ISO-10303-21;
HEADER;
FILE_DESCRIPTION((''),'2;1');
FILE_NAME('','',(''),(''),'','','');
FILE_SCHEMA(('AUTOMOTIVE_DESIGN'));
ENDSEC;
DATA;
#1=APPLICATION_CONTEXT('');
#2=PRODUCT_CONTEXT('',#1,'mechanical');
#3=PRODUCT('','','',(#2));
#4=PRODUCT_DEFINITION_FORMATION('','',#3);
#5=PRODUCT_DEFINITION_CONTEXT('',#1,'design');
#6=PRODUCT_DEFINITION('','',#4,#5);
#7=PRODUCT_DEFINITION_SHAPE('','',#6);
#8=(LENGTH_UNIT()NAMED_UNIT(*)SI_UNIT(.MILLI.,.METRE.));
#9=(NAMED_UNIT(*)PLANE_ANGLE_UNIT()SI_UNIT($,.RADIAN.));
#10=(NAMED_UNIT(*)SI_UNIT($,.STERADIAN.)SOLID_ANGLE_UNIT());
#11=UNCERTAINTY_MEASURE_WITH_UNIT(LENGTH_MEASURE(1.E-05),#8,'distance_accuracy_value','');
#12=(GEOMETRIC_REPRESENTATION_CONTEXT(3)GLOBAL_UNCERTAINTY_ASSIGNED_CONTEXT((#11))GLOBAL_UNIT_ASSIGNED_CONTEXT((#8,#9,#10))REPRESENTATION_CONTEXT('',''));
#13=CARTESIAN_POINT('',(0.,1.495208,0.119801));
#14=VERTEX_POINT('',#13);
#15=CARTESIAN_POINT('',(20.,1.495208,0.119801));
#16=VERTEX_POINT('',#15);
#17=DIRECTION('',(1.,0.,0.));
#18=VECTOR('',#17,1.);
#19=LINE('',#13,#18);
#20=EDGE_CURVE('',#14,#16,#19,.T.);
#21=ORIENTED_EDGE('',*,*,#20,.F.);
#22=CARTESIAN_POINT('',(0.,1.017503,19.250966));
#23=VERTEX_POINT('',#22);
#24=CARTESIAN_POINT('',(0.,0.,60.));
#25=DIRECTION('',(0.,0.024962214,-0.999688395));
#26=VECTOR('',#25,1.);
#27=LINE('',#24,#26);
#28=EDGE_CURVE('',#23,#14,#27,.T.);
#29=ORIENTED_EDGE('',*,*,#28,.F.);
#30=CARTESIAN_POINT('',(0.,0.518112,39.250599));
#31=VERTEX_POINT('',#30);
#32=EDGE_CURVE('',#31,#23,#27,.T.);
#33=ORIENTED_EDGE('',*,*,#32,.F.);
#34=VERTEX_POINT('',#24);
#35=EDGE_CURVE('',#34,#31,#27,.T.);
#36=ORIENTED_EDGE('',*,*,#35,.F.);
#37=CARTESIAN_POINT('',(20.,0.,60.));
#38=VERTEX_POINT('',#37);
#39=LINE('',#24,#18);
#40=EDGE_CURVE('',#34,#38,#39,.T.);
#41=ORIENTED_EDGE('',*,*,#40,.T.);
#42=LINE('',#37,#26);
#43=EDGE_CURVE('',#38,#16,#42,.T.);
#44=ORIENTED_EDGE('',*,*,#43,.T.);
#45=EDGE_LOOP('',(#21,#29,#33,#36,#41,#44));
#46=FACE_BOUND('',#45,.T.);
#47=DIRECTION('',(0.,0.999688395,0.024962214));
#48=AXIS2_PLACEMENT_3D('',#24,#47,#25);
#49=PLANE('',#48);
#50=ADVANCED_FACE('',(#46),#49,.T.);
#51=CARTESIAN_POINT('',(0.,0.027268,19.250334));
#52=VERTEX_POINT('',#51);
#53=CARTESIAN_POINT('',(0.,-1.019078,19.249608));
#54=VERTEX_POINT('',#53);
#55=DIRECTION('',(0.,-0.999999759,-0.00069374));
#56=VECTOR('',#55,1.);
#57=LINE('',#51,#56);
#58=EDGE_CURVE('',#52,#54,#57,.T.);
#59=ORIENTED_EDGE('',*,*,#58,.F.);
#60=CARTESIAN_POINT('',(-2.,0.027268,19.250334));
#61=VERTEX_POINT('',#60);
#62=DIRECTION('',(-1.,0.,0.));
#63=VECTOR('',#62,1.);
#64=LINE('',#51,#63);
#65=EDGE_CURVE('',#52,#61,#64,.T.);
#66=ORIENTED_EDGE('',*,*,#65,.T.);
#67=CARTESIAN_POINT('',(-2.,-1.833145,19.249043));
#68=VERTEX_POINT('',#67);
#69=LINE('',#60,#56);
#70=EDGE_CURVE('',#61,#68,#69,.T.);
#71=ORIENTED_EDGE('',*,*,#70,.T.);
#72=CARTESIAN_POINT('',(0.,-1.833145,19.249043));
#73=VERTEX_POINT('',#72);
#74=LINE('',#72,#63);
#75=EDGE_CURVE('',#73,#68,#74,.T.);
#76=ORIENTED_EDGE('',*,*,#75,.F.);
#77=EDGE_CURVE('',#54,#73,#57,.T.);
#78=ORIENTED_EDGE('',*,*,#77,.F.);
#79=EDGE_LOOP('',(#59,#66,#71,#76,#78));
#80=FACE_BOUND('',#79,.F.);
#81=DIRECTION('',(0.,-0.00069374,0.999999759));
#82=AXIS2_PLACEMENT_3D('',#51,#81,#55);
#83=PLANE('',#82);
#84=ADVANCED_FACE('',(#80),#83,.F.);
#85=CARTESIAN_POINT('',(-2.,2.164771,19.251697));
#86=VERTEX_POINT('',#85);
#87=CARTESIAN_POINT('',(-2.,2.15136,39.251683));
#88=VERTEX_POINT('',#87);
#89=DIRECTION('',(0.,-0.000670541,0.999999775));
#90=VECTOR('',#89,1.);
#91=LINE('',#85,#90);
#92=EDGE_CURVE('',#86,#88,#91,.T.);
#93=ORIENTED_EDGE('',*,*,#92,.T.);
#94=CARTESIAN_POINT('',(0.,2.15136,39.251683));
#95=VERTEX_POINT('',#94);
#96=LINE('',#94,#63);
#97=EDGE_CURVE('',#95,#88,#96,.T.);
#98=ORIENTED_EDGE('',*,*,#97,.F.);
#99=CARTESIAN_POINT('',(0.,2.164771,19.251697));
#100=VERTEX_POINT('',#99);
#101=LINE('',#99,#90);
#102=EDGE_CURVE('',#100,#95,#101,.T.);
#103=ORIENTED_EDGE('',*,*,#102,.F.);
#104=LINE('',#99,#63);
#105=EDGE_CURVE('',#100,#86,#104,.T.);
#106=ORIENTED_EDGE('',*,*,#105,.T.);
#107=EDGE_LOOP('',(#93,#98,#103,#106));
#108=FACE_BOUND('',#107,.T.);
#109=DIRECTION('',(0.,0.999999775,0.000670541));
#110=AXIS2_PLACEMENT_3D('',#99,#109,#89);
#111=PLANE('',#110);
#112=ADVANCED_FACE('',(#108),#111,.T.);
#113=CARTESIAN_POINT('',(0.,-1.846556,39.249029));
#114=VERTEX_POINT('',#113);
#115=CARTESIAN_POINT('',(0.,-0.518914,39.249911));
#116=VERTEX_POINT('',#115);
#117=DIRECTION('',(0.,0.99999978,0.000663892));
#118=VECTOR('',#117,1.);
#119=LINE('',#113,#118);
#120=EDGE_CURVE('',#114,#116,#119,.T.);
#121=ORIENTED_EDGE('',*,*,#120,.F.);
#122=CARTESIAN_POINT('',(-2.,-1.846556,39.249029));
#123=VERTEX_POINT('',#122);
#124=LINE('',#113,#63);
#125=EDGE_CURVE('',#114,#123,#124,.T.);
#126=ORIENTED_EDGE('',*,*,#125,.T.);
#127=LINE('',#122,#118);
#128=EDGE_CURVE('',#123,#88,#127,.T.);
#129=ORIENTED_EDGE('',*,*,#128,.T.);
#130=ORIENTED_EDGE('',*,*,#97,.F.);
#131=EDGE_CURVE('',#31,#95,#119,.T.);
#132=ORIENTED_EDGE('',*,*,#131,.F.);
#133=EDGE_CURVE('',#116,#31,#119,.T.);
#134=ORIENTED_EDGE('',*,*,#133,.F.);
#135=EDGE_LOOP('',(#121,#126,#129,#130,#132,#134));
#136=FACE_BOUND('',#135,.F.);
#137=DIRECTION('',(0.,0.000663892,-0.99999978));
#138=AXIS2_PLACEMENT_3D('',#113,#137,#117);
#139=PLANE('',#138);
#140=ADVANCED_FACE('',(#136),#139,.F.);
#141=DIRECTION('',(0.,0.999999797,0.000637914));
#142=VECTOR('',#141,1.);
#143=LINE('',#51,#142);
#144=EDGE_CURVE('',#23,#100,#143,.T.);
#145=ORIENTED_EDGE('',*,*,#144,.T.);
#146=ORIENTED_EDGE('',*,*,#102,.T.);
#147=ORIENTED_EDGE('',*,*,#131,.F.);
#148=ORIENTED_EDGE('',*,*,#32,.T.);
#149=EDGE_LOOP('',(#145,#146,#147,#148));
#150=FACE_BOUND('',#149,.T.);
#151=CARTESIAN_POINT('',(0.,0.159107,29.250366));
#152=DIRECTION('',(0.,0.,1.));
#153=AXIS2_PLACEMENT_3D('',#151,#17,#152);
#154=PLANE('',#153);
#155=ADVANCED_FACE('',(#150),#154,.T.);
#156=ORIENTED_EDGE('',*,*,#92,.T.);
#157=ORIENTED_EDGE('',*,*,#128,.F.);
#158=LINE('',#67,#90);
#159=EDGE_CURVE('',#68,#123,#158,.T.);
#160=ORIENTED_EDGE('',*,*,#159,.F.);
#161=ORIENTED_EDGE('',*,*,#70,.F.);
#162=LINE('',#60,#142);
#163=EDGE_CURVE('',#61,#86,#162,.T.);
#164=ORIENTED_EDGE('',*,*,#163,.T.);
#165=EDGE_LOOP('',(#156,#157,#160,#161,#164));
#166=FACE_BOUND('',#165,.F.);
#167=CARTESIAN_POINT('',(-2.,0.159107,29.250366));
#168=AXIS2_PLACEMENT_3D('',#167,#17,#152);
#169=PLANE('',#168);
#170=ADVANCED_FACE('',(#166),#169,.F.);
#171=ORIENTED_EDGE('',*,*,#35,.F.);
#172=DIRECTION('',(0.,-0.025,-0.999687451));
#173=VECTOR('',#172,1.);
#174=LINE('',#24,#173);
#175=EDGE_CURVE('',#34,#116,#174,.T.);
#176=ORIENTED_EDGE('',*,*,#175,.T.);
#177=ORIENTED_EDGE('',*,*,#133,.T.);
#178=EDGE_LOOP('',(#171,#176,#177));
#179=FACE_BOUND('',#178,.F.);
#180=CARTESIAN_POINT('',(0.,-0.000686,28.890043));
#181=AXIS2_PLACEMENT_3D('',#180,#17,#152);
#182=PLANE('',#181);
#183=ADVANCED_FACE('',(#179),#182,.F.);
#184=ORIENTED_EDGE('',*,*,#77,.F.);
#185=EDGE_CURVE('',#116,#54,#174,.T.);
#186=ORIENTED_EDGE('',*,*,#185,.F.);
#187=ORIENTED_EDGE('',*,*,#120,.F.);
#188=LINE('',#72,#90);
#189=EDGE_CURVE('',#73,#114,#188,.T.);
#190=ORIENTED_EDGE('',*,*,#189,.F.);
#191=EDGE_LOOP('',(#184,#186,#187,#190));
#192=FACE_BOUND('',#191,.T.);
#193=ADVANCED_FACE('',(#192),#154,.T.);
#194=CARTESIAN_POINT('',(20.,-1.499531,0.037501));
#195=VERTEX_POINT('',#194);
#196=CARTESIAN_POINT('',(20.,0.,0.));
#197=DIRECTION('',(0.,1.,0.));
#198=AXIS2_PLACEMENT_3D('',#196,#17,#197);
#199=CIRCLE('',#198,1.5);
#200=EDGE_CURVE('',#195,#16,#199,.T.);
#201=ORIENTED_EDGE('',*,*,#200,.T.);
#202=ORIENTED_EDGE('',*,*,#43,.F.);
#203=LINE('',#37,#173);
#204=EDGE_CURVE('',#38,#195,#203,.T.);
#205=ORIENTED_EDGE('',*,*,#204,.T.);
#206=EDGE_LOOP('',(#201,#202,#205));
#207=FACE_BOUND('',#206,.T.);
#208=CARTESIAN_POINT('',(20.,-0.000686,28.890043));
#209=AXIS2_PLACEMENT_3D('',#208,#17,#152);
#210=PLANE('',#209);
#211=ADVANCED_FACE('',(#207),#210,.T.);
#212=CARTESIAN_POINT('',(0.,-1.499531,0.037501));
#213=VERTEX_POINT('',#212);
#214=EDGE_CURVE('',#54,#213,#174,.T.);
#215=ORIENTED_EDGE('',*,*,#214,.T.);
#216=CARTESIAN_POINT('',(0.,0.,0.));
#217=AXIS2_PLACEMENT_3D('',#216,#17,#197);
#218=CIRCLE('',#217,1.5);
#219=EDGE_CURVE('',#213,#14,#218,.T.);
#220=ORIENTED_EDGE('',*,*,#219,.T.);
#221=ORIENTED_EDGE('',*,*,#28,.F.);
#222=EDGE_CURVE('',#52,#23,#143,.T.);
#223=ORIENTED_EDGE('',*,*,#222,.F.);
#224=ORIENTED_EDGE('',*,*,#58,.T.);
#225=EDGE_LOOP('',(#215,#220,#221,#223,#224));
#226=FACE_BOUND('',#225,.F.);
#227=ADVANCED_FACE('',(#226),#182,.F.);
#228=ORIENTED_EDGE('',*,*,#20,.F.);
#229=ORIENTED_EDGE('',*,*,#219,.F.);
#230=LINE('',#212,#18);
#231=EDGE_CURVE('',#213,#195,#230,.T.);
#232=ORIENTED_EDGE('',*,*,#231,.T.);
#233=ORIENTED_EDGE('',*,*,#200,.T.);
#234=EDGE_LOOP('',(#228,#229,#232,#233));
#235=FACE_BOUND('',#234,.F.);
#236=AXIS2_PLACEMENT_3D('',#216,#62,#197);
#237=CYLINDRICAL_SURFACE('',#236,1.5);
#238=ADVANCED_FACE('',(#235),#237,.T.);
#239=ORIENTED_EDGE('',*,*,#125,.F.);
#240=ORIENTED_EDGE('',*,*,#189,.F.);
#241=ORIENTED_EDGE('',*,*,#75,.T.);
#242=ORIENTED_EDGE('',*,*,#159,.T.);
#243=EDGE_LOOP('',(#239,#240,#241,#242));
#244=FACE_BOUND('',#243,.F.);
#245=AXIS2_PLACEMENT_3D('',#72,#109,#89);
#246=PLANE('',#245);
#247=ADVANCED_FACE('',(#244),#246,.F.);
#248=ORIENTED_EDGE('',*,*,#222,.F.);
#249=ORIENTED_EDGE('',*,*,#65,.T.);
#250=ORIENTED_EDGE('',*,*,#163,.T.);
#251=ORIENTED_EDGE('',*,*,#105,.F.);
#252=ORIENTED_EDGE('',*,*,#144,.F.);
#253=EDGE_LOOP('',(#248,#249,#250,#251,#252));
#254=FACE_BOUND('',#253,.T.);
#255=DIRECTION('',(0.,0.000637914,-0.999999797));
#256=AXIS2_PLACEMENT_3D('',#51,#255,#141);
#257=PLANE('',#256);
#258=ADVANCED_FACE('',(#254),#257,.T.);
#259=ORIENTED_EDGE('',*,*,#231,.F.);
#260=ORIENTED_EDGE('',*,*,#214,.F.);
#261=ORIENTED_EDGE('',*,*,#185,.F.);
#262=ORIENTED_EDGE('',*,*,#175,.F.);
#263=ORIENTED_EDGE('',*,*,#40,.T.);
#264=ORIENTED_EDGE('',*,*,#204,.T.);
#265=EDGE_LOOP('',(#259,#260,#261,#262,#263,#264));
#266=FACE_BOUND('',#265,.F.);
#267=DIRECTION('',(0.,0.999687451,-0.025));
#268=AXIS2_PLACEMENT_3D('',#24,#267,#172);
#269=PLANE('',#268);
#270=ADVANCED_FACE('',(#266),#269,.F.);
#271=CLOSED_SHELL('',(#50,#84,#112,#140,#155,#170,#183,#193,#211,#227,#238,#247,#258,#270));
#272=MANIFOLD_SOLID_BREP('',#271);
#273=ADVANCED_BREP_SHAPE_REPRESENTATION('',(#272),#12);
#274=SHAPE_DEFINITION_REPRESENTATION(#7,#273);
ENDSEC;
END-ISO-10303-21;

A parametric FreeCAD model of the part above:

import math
import FreeCAD as App
import Part
import Sketcher
from FreeCAD import Vector
Q = App.Units.Quantity

doc = App.newDocument("Part")
body = doc.addObject("PartDesign::Body", "Body")

# Sketch on YZ plane
sketch1 = doc.addObject("Sketcher::SketchObject", "Sketch")
body.addObject(sketch1)
sketch1.AttachmentSupport = (doc.YZ_Plane, [""])
sketch1.MapMode = "FlatFace"
sketch1.addGeometry([
    Part.LineSegment(Vector(1.5, 0.1, 0), Vector(0, 60, 0)),
    Part.LineSegment(Vector(0, 60, 0), Vector(-1.5, 0, 0)),
    Part.ArcOfCircle(Part.Circle(Vector(0, 0, 0), Vector(0, 0, 1), 1.5), math.radians(179), math.radians(365)),
], False)
sketch1.addConstraint([
    Sketcher.Constraint("Coincident", 0, 2, 1, 1),
    Sketcher.Constraint("Tangent", 1, 2, 2, 1),
    Sketcher.Constraint("Coincident", 2, 2, 0, 1),
    Sketcher.Constraint("Coincident", 2, 3, -1, 1),
    Sketcher.Constraint("PointOnObject", 0, 2, -2),
    Sketcher.Constraint("Radius", 2, Q("1.5 mm")),
    Sketcher.Constraint("DistanceY", -1, 1, 0, 2, Q("60 mm")),
    Sketcher.Constraint("Angle", 0, Q("91.4304 deg")),
])
pad1 = doc.addObject("PartDesign::Pad", "Pad")
body.addObject(pad1)
pad1.Profile = sketch1
pad1.Length = 20

# Sketch on YZ plane
sketch2 = doc.addObject("Sketcher::SketchObject", "Sketch001")
body.addObject(sketch2)
sketch2.AttachmentSupport = (doc.YZ_Plane, [""])
sketch2.MapMode = "FlatFace"
sketch2.addGeometry([
    Part.LineSegment(Vector(2.2, 19.3, 0), Vector(0, 19.3, 0)),  # 0
    Part.LineSegment(Vector(0, 19.3, 0), Vector(-1.8, 19.2, 0)),  # 1
    Part.LineSegment(Vector(-1.8, 19.2, 0), Vector(-1.8, 39.2, 0)),  # 2
    Part.LineSegment(Vector(-1.8, 39.2, 0), Vector(2.2, 39.3, 0)),  # 3
    Part.LineSegment(Vector(2.2, 39.3, 0), Vector(2.2, 19.3, 0)),  # 4
], False)
sketch2.addConstraint([
    Sketcher.Constraint("Coincident", 0, 2, 1, 1),
    Sketcher.Constraint("Coincident", 1, 2, 2, 1),
    Sketcher.Constraint("Coincident", 2, 2, 3, 1),
    Sketcher.Constraint("Coincident", 3, 2, 4, 1),
    Sketcher.Constraint("Coincident", 4, 2, 0, 1),
    Sketcher.Constraint("Parallel", 0, 1),
    Sketcher.Constraint("Perpendicular", 1, 2),
    Sketcher.Constraint("Perpendicular", 2, 3),
    Sketcher.Constraint("Perpendicular", 3, 4),
    Sketcher.Constraint("Distance", 2, Q("20 mm")),
    Sketcher.Constraint("Angle", 1, Q("-179.9603 deg")),
    Sketcher.Constraint("Distance", 3, Q("3.998 mm")),
    Sketcher.Constraint("DistanceY", -1, 1, 1, 2, Q("19.249 mm")),
    Sketcher.Constraint("DistanceX", 0, 2, 3, 2, Q("2.124 mm")),
    Sketcher.Constraint("DistanceX", -1, 1, 0, 2, Q("0.0273 mm")),
])
pad2 = doc.addObject("PartDesign::Pad", "Pad001")
body.addObject(pad2)
pad2.Profile = sketch2
pad2.Length = 2
pad2.Reversed = True

doc.recompute()
